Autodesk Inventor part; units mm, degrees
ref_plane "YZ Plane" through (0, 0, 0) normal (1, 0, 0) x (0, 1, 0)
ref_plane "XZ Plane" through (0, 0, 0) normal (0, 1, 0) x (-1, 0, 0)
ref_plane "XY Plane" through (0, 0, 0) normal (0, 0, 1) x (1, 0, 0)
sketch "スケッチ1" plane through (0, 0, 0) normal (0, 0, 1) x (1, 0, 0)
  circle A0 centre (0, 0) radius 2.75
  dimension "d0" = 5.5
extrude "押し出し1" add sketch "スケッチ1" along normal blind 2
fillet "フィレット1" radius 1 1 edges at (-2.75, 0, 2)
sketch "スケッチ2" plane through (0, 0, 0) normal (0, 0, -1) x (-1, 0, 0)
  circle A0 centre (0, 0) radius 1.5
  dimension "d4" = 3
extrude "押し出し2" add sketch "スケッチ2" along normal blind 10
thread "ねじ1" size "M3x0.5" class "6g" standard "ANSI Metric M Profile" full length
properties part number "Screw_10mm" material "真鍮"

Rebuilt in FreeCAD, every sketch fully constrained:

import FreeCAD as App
import Part
import Sketcher
Q = App.Units.Quantity


def edges_at(feature, points):
    """Names of the edges that pass closest to the given points."""
    edges = feature.Shape.Edges
    near = lambda p: min(range(len(edges)), key=lambda i: edges[i].distToShape(Part.Vertex(*p))[0])
    return sorted({f"Edge{near(p) + 1}" for p in points})

doc = App.newDocument("Part")
body = doc.addObject("PartDesign::Body", "Body")

sketch1 = body.newObject("Sketcher::SketchObject", "Sketch")
sketch1.AttachmentSupport = (doc.getObject("XY_Plane"), [""])
sketch1.MapMode = "FlatFace"
sketch1.addGeometry(Part.Circle(App.Vector(0, 0, 0), App.Vector(0, 0, 1), 2.8), False)
sketch1.addConstraint([
    Sketcher.Constraint("Coincident", 0, 3, -1, 1),
    Sketcher.Constraint("Diameter", 0, Q("5.5 mm")),
])
pad1 = body.newObject("PartDesign::Pad", "Pad")
pad1.Profile = sketch1
pad1.Length = 2
doc.recompute()

fillet = body.newObject("PartDesign::Fillet", "Fillet")
fillet.Base = (pad1, edges_at(pad1, [(-2.75, 0, 2)]))
fillet.Radius = 1

sketch2 = body.newObject("Sketcher::SketchObject", "Sketch001")
sketch2.AttachmentSupport = (doc.getObject("XY_Plane"), [""])
sketch2.MapMode = "FlatFace"
sketch2.addGeometry(Part.Circle(App.Vector(0, 0, 0), App.Vector(0, 0, 1), 1.5), False)
sketch2.addConstraint([
    Sketcher.Constraint("Coincident", 0, 3, -1, 1),
    Sketcher.Constraint("Diameter", 0, Q("3 mm")),
])
pad2 = body.newObject("PartDesign::Pad", "Pad001")
pad2.Profile = sketch2
pad2.Length = 10
pad2.Reversed = True

doc.recompute()
